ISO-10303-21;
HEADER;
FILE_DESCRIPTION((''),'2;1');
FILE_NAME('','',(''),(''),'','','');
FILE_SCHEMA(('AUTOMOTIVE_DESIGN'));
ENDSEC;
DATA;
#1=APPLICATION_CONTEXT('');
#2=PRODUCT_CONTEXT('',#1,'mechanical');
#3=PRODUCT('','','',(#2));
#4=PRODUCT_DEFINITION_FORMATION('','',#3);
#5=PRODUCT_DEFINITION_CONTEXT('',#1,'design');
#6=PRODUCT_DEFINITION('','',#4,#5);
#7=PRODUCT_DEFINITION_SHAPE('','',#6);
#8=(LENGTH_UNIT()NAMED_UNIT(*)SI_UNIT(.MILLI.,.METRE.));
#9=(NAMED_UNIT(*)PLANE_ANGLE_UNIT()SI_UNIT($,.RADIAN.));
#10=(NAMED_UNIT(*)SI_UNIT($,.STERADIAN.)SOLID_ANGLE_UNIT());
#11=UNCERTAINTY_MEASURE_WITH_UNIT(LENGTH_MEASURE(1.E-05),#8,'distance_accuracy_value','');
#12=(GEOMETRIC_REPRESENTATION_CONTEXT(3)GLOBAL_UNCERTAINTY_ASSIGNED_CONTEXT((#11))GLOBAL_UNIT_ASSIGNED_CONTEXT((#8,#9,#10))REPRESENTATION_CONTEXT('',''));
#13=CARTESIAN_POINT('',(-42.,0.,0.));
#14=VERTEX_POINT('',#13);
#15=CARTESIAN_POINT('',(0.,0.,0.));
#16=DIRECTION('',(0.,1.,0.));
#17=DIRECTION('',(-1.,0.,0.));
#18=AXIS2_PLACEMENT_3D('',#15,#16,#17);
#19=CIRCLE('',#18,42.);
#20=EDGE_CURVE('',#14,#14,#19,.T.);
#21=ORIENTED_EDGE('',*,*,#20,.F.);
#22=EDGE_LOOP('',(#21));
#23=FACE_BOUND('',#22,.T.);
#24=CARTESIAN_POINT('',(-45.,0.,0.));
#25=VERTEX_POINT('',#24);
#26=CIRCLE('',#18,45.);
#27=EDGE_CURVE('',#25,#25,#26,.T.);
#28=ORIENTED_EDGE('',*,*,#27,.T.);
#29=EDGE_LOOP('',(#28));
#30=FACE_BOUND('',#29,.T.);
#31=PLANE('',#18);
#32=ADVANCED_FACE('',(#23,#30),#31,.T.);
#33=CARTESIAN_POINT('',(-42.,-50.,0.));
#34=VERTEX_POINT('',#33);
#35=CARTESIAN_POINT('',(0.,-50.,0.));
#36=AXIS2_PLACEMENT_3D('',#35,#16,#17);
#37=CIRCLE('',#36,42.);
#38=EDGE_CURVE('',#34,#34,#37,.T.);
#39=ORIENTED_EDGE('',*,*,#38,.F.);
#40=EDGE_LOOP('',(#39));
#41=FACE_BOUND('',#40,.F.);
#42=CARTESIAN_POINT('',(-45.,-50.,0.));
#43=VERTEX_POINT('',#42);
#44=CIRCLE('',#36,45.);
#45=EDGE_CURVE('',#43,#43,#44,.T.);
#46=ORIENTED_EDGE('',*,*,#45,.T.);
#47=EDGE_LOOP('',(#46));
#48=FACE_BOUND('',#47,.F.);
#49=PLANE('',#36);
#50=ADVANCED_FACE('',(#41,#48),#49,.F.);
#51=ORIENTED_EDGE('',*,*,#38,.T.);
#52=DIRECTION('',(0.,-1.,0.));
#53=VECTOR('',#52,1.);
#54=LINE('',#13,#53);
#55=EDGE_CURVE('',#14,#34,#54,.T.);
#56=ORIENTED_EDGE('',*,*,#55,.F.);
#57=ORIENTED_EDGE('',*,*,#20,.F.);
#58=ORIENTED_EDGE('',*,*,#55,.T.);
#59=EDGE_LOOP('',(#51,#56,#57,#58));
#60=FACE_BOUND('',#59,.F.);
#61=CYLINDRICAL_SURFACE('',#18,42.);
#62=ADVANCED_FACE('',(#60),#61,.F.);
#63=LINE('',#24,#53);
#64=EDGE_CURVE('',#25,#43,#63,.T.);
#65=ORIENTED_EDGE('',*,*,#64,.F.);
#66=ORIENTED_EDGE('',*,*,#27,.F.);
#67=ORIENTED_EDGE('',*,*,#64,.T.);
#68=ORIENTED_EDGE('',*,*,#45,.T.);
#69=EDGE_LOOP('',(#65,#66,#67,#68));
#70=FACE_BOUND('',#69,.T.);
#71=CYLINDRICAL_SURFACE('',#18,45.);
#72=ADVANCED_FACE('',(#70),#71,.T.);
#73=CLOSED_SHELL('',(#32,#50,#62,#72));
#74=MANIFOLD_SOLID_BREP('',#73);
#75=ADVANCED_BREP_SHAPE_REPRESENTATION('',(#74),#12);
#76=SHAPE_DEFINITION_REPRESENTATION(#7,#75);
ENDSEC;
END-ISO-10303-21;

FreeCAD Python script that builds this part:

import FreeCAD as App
import Part
import Sketcher
from FreeCAD import Vector

doc = App.newDocument("Part")
params = doc.addObject("Spreadsheet::Sheet", "Params")
for row, (alias, value) in enumerate([
    ("sketch1_diameter", "90 mm"),
    ("sketch1_diameter2", "84 mm"),
    ("pad1_length", "50 mm"),
], start=1):
    params.set(f"A{row}", alias)
    params.set(f"B{row}", "=" + value)
    params.setAlias(f"B{row}", alias)

body = doc.addObject("PartDesign::Body", "Body")

# Sketch on XZ plane
sketch1 = body.newObject("Sketcher::SketchObject", "Sketch")
sketch1.AttachmentSupport = (doc.getObject("XZ_Plane"), [""])
sketch1.MapMode = "FlatFace"
sketch1.addGeometry([
    Part.Circle(Vector(0, 0, 0), Vector(0, 0, 1), 45),
    Part.Circle(Vector(0, 0, 0), Vector(0, 0, 1), 42),
], False)
sketch1.addConstraint([
    Sketcher.Constraint("Coincident", 0, 3, -1, 1),
    Sketcher.Constraint("Coincident", 1, 3, -1, 1),
    Sketcher.Constraint("Diameter", 0, 90.0),
    Sketcher.Constraint("Diameter", 1, 84.0),
])
sketch1.setExpression("Constraints[2]", "Params.sketch1_diameter")
sketch1.setExpression("Constraints[3]", "Params.sketch1_diameter2")
pad1 = body.newObject("PartDesign::Pad", "Pad")
pad1.Profile = sketch1
pad1.setExpression("Length", "Params.pad1_length")

doc.recompute()
